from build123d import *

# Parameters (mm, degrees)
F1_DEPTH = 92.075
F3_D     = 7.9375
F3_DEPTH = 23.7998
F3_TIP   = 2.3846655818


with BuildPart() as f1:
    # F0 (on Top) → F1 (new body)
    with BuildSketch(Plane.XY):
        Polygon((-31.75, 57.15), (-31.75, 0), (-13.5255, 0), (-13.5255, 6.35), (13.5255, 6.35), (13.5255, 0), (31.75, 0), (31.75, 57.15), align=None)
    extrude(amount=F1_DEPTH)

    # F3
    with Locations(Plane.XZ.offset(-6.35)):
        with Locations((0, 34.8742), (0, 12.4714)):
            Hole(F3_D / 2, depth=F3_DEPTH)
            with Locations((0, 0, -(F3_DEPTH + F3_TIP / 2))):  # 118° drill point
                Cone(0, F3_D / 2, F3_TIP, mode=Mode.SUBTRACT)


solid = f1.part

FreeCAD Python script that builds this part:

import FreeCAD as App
import Part
import Sketcher

V = App.Vector
Q = App.Units.Quantity


def add_polygon(sketch, points):
    """Adds a closed chain of lines whose ends are joined by coincident constraints."""
    first, n = sketch.GeometryCount, len(points)
    for a, b in zip(points, points[1:] + points[:1]):
        sketch.addGeometry(Part.LineSegment(App.Vector(*a, 0), App.Vector(*b, 0)), False)
    for i in range(n):
        sketch.addConstraint(Sketcher.Constraint("Coincident", first + i, 2, first + (i + 1) % n, 1))

doc = App.newDocument("Part")
body = doc.addObject("PartDesign::Body", "Body")

# Sketch on XY plane
sketch1 = body.newObject("Sketcher::SketchObject", "Sketch")
sketch1.AttachmentSupport = (doc.getObject("XY_Plane"), [""])
sketch1.MapMode = "FlatFace"
add_polygon(sketch1, [(-32, 57), (-32, 0), (-14, 0), (-14, 6), (14, 6), (14, 0), (32, 0), (32, 57)])  # lines 0-7
sketch1.addConstraint([
    Sketcher.Constraint("Vertical", 0),
    Sketcher.Constraint("Horizontal", 1),
    Sketcher.Constraint("Vertical", 2),
    Sketcher.Constraint("Horizontal", 3),
    Sketcher.Constraint("Vertical", 4),
    Sketcher.Constraint("Horizontal", 5),
    Sketcher.Constraint("Vertical", 6),
    Sketcher.Constraint("Horizontal", 7),
    Sketcher.Constraint("Symmetric", 1, 2, 4, 2, -1, 1),
    Sketcher.Constraint("Symmetric", 0, 2, 5, 2, -2),
    Sketcher.Constraint("DistanceX", 7, 2, 7, 1, Q("2.5 in")),
    Sketcher.Constraint("DistanceY", 3, 2, 6, 2, Q("2 in")),
    Sketcher.Constraint("DistanceY", 0, 2, 0, 1, Q("2.25 in")),
    Sketcher.Constraint("DistanceX", 3, 1, 3, 2, Q("1.065 in")),
])
pad1 = body.newObject("PartDesign::Pad", "Pad")
pad1.Profile = sketch1
pad1.Length = Q("3.625 in")

# Sketch on XZ plane
sketch2 = body.newObject("Sketcher::SketchObject", "Sketch001")
sketch2.AttachmentSupport = (doc.getObject("XZ_Plane"), [""])
sketch2.MapMode = "FlatFace"
sketch2.AttachmentOffset = App.Placement(V(0, 0, -0.25 * 25.4), App.Rotation())
sketch2.addGeometry([
    Part.Circle(V(0, 34.9, 0), V(0, 0, 1), 4),
    Part.Circle(V(0, 12.5, 0), V(0, 0, 1), 4),
], False)
sketch2.addConstraint([
    Sketcher.Constraint("Equal", 0, 1),
    Sketcher.Constraint("PointOnObject", 0, 3, -2),
    Sketcher.Constraint("PointOnObject", 1, 3, -2),
    Sketcher.Constraint("Diameter", 0, Q("0.3125 in")),
    Sketcher.Constraint("DistanceY", -1, 1, 0, 3, Q("1.373 in")),
    Sketcher.Constraint("DistanceY", -1, 1, 1, 3, Q("0.491 in")),
])
doc.recompute()
hole = body.newObject("PartDesign::Hole", "Hole")
hole.Profile = sketch2
hole.ThreadType = "None"
hole.Diameter = Q("0.3125 in")
hole.DepthType = "Dimension"
hole.Depth = Q("0.937 in")
hole.DrillPoint = "Angled"
hole.DrillPointAngle = 118

doc.recompute()
